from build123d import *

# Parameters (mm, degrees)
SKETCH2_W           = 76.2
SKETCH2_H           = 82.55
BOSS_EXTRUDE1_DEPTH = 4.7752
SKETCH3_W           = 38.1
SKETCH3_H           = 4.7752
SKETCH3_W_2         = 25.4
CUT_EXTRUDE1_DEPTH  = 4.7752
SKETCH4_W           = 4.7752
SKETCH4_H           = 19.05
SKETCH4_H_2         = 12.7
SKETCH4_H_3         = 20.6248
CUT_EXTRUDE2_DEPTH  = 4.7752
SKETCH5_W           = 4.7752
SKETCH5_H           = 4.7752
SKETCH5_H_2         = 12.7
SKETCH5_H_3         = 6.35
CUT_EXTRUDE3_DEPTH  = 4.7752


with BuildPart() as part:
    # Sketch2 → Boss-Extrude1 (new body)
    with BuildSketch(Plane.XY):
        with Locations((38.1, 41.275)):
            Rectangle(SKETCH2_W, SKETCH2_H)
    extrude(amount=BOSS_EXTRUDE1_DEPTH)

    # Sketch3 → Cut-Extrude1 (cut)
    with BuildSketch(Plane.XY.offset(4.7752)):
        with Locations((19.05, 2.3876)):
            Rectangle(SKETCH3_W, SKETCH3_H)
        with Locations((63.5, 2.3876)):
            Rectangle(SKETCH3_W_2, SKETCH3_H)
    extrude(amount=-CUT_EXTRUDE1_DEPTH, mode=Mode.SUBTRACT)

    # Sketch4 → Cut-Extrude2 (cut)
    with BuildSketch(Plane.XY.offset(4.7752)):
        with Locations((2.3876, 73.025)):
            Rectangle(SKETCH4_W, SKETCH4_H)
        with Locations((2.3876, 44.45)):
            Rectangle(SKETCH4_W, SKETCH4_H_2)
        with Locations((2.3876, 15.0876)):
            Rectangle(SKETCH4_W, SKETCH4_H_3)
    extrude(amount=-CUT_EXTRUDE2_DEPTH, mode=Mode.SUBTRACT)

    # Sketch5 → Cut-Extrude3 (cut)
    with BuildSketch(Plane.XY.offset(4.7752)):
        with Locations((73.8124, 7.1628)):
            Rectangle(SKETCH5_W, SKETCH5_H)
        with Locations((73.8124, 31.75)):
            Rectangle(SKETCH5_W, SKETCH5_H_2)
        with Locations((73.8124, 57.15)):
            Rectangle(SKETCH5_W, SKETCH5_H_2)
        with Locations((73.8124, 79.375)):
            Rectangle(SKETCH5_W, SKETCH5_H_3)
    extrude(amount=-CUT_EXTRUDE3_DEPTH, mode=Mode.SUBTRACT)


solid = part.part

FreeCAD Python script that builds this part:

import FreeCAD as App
import Part
import Sketcher
from FreeCAD import Vector
Q = App.Units.Quantity


def add_polygon(sketch, points):
    """Adds a closed chain of lines whose ends are joined by coincident constraints."""
    first, n = sketch.GeometryCount, len(points)
    for a, b in zip(points, points[1:] + points[:1]):
        sketch.addGeometry(Part.LineSegment(App.Vector(*a, 0), App.Vector(*b, 0)), False)
    for i in range(n):
        sketch.addConstraint(Sketcher.Constraint("Coincident", first + i, 2, first + (i + 1) % n, 1))

doc = App.newDocument("Part")
body = doc.addObject("PartDesign::Body", "Body")

# Sketch on XY plane
sketch1 = body.newObject("Sketcher::SketchObject", "Sketch")
sketch1.AttachmentSupport = (doc.getObject("XY_Plane"), [""])
sketch1.MapMode = "FlatFace"
add_polygon(sketch1, [(0, 82.55), (0, 0), (76.2, 0), (76.2, 82.55)])  # lines 0-3
sketch1.addConstraint(Sketcher.Constraint("Vertical", 0))
sketch1.addConstraint(Sketcher.Constraint("Horizontal", 1))
sketch1.addConstraint(Sketcher.Constraint("Vertical", 2))
sketch1.addConstraint(Sketcher.Constraint("Horizontal", 3))
sketch1.addConstraint(Sketcher.Constraint("Coincident", 0, 2, -1, 1))
sketch1.addConstraint(Sketcher.Constraint("DistanceX", 1, 1, 1, 2, Q("3 in")))
sketch1.addConstraint(Sketcher.Constraint("DistanceY", 0, 2, 0, 1, Q("3.25 in")))
pad1 = body.newObject("PartDesign::Pad", "Pad")
pad1.Profile = sketch1
pad1.Length = Q("0.188 in")

# Sketch on XY plane
sketch2 = body.newObject("Sketcher::SketchObject", "Sketch001")
sketch2.AttachmentSupport = (doc.getObject("XY_Plane"), [""])
sketch2.MapMode = "FlatFace"
sketch2.AttachmentOffset = App.Placement(Vector(0, 0, 0.188 * 25.4), App.Rotation())
add_polygon(sketch2, [(0, 4.7752), (0, 0), (38.1, 0), (38.1, 4.7752)])  # lines 0-3
add_polygon(sketch2, [(50.8, 4.7752), (50.8, 0), (76.2, 0), (76.2, 4.7752)])  # lines 4-7
sketch2.addConstraint(Sketcher.Constraint("Vertical", 0))
sketch2.addConstraint(Sketcher.Constraint("Horizontal", 1))
sketch2.addConstraint(Sketcher.Constraint("Vertical", 2))
sketch2.addConstraint(Sketcher.Constraint("Horizontal", 3))
sketch2.addConstraint(Sketcher.Constraint("Vertical", 4))
sketch2.addConstraint(Sketcher.Constraint("Horizontal", 5))
sketch2.addConstraint(Sketcher.Constraint("Vertical", 6))
sketch2.addConstraint(Sketcher.Constraint("Horizontal", 7))
sketch2.addConstraint(Sketcher.Constraint("Coincident", 0, 2, -1, 1))
sketch2.addConstraint(Sketcher.Constraint("PointOnObject", 4, 2, -1))
sketch2.addConstraint(Sketcher.Constraint("Horizontal", 3, 2, 6, 2))
sketch2.addConstraint(Sketcher.Constraint("DistanceX", 5, 1, 5, 2, Q("1 in")))
sketch2.addConstraint(Sketcher.Constraint("DistanceX", 1, 1, 1, 2, Q("1.5 in")))
sketch2.addConstraint(Sketcher.Constraint("DistanceX", -1, 1, 4, 2, Q("2 in")))
sketch2.addConstraint(Sketcher.Constraint("DistanceY", 0, 2, 0, 1, Q("0.188 in")))
pocket1 = body.newObject("PartDesign::Pocket", "Pocket")
pocket1.Profile = sketch2
pocket1.Length = Q("0.188 in")

# Sketch on XY plane
sketch3 = body.newObject("Sketcher::SketchObject", "Sketch002")
sketch3.AttachmentSupport = (doc.getObject("XY_Plane"), [""])
sketch3.MapMode = "FlatFace"
sketch3.AttachmentOffset = App.Placement(Vector(0, 0, 0.188 * 25.4), App.Rotation())
add_polygon(sketch3, [(0, 82.55), (0, 63.5), (4.7752, 63.5), (4.7752, 82.55)])  # lines 0-3
add_polygon(sketch3, [(0, 50.8), (0, 38.1), (4.7752, 38.1), (4.7752, 50.8)])  # lines 4-7
add_polygon(sketch3, [(0, 25.4), (0, 4.7752), (4.7752, 4.7752), (4.7752, 25.4)])  # lines 8-11
sketch3.addConstraint(Sketcher.Constraint("Vertical", 0))
sketch3.addConstraint(Sketcher.Constraint("Horizontal", 1))
sketch3.addConstraint(Sketcher.Constraint("Vertical", 2))
sketch3.addConstraint(Sketcher.Constraint("Horizontal", 3))
sketch3.addConstraint(Sketcher.Constraint("Vertical", 4))
sketch3.addConstraint(Sketcher.Constraint("Horizontal", 5))
sketch3.addConstraint(Sketcher.Constraint("Vertical", 6))
sketch3.addConstraint(Sketcher.Constraint("Horizontal", 7))
sketch3.addConstraint(Sketcher.Constraint("Vertical", 8))
sketch3.addConstraint(Sketcher.Constraint("Horizontal", 9))
sketch3.addConstraint(Sketcher.Constraint("Vertical", 10))
sketch3.addConstraint(Sketcher.Constraint("Horizontal", 11))
sketch3.addConstraint(Sketcher.Constraint("PointOnObject", 0, 2, -2))
sketch3.addConstraint(Sketcher.Constraint("PointOnObject", 4, 2, -2))
sketch3.addConstraint(Sketcher.Constraint("PointOnObject", 8, 2, -2))
sketch3.addConstraint(Sketcher.Constraint("Vertical", 2, 2, 5, 2))
sketch3.addConstraint(Sketcher.Constraint("Vertical", 6, 2, 9, 2))
sketch3.addConstraint(Sketcher.Constraint("DistanceY", 4, 2, 4, 1, Q("0.5 in")))
sketch3.addConstraint(Sketcher.Constraint("DistanceY", -1, 1, 6, 2, Q("2 in")))
sketch3.addConstraint(Sketcher.Constraint("DistanceY", -1, 1, 10, 2, Q("1 in")))
sketch3.addConstraint(Sketcher.Constraint("DistanceY", 4, 2, 0, 2, Q("1 in")))
sketch3.addConstraint(Sketcher.Constraint("DistanceY", 0, 2, 0, 1, Q("0.75 in")))
sketch3.addConstraint(Sketcher.Constraint("DistanceX", 1, 1, 1, 2, Q("0.188 in")))
sketch3.addConstraint(Sketcher.Constraint("DistanceY", 8, 2, 8, 1, Q("0.812 in")))
pocket2 = body.newObject("PartDesign::Pocket", "Pocket001")
pocket2.Profile = sketch3
pocket2.Length = Q("0.188 in")

# Sketch on XY plane
sketch4 = body.newObject("Sketcher::SketchObject", "Sketch003")
sketch4.AttachmentSupport = (doc.getObject("XY_Plane"), [""])
sketch4.MapMode = "FlatFace"
sketch4.AttachmentOffset = App.Placement(Vector(0, 0, 0.188 * 25.4), App.Rotation())
add_polygon(sketch4, [(71.4248, 9.5504), (71.4248, 4.7752), (76.2, 4.7752), (76.2, 9.5504)])  # lines 0-3
add_polygon(sketch4, [(71.4248, 38.1), (71.4248, 25.4), (76.2, 25.4), (76.2, 38.1)])  # lines 4-7
add_polygon(sketch4, [(71.4248, 63.5), (71.4248, 50.8), (76.2, 50.8), (76.2, 63.5)])  # lines 8-11
add_polygon(sketch4, [(71.4248, 82.55), (71.4248, 76.2), (76.2, 76.2), (76.2, 82.55)])  # lines 12-15
sketch4.addConstraint(Sketcher.Constraint("Vertical", 0))
sketch4.addConstraint(Sketcher.Constraint("Horizontal", 1))
sketch4.addConstraint(Sketcher.Constraint("Vertical", 2))
sketch4.addConstraint(Sketcher.Constraint("Horizontal", 3))
sketch4.addConstraint(Sketcher.Constraint("Vertical", 4))
sketch4.addConstraint(Sketcher.Constraint("Horizontal", 5))
sketch4.addConstraint(Sketcher.Constraint("Vertical", 6))
sketch4.addConstraint(Sketcher.Constraint("Horizontal", 7))
sketch4.addConstraint(Sketcher.Constraint("Vertical", 8))
sketch4.addConstraint(Sketcher.Constraint("Horizontal", 9))
sketch4.addConstraint(Sketcher.Constraint("Vertical", 10))
sketch4.addConstraint(Sketcher.Constraint("Horizontal", 11))
sketch4.addConstraint(Sketcher.Constraint("Vertical", 12))
sketch4.addConstraint(Sketcher.Constraint("Horizontal", 13))
sketch4.addConstraint(Sketcher.Constraint("Vertical", 14))
sketch4.addConstraint(Sketcher.Constraint("Horizontal", 15))
sketch4.addConstraint(Sketcher.Constraint("Vertical", 3, 2, 4, 2))
sketch4.addConstraint(Sketcher.Constraint("Vertical", 2, 2, 5, 2))
sketch4.addConstraint(Sketcher.Constraint("Vertical", 7, 2, 8, 2))
sketch4.addConstraint(Sketcher.Constraint("Vertical", 6, 2, 9, 2))
sketch4.addConstraint(Sketcher.Constraint("Vertical", 11, 2, 12, 2))
sketch4.addConstraint(Sketcher.Constraint("Vertical", 10, 2, 13, 2))
sketch4.addConstraint(Sketcher.Constraint("Equal", 15, 0))
sketch4.addConstraint(Sketcher.Constraint("Equal", 6, 8))
sketch4.addConstraint(Sketcher.Constraint("DistanceY", 4, 2, 4, 1, Q("0.5 in")))
sketch4.addConstraint(Sketcher.Constraint("DistanceX", -1, 1, 1, 2, Q("3 in")))
sketch4.addConstraint(Sketcher.Constraint("DistanceY", -1, 1, 4, 2, Q("1 in")))
sketch4.addConstraint(Sketcher.Constraint("DistanceY", -1, 1, 8, 2, Q("2 in")))
sketch4.addConstraint(Sketcher.Constraint("DistanceY", -1, 1, 12, 2, Q("3 in")))
sketch4.addConstraint(Sketcher.Constraint("DistanceY", 12, 2, 12, 1, Q("0.25 in")))
sketch4.addConstraint(Sketcher.Constraint("DistanceX", 1, 1, 1, 2, Q("0.188 in")))
sketch4.addConstraint(Sketcher.Constraint("DistanceY", -1, 1, 0, 2, Q("0.188 in")))
pocket3 = body.newObject("PartDesign::Pocket", "Pocket002")
pocket3.Profile = sketch4
pocket3.Length = Q("0.188 in")

doc.recompute()
